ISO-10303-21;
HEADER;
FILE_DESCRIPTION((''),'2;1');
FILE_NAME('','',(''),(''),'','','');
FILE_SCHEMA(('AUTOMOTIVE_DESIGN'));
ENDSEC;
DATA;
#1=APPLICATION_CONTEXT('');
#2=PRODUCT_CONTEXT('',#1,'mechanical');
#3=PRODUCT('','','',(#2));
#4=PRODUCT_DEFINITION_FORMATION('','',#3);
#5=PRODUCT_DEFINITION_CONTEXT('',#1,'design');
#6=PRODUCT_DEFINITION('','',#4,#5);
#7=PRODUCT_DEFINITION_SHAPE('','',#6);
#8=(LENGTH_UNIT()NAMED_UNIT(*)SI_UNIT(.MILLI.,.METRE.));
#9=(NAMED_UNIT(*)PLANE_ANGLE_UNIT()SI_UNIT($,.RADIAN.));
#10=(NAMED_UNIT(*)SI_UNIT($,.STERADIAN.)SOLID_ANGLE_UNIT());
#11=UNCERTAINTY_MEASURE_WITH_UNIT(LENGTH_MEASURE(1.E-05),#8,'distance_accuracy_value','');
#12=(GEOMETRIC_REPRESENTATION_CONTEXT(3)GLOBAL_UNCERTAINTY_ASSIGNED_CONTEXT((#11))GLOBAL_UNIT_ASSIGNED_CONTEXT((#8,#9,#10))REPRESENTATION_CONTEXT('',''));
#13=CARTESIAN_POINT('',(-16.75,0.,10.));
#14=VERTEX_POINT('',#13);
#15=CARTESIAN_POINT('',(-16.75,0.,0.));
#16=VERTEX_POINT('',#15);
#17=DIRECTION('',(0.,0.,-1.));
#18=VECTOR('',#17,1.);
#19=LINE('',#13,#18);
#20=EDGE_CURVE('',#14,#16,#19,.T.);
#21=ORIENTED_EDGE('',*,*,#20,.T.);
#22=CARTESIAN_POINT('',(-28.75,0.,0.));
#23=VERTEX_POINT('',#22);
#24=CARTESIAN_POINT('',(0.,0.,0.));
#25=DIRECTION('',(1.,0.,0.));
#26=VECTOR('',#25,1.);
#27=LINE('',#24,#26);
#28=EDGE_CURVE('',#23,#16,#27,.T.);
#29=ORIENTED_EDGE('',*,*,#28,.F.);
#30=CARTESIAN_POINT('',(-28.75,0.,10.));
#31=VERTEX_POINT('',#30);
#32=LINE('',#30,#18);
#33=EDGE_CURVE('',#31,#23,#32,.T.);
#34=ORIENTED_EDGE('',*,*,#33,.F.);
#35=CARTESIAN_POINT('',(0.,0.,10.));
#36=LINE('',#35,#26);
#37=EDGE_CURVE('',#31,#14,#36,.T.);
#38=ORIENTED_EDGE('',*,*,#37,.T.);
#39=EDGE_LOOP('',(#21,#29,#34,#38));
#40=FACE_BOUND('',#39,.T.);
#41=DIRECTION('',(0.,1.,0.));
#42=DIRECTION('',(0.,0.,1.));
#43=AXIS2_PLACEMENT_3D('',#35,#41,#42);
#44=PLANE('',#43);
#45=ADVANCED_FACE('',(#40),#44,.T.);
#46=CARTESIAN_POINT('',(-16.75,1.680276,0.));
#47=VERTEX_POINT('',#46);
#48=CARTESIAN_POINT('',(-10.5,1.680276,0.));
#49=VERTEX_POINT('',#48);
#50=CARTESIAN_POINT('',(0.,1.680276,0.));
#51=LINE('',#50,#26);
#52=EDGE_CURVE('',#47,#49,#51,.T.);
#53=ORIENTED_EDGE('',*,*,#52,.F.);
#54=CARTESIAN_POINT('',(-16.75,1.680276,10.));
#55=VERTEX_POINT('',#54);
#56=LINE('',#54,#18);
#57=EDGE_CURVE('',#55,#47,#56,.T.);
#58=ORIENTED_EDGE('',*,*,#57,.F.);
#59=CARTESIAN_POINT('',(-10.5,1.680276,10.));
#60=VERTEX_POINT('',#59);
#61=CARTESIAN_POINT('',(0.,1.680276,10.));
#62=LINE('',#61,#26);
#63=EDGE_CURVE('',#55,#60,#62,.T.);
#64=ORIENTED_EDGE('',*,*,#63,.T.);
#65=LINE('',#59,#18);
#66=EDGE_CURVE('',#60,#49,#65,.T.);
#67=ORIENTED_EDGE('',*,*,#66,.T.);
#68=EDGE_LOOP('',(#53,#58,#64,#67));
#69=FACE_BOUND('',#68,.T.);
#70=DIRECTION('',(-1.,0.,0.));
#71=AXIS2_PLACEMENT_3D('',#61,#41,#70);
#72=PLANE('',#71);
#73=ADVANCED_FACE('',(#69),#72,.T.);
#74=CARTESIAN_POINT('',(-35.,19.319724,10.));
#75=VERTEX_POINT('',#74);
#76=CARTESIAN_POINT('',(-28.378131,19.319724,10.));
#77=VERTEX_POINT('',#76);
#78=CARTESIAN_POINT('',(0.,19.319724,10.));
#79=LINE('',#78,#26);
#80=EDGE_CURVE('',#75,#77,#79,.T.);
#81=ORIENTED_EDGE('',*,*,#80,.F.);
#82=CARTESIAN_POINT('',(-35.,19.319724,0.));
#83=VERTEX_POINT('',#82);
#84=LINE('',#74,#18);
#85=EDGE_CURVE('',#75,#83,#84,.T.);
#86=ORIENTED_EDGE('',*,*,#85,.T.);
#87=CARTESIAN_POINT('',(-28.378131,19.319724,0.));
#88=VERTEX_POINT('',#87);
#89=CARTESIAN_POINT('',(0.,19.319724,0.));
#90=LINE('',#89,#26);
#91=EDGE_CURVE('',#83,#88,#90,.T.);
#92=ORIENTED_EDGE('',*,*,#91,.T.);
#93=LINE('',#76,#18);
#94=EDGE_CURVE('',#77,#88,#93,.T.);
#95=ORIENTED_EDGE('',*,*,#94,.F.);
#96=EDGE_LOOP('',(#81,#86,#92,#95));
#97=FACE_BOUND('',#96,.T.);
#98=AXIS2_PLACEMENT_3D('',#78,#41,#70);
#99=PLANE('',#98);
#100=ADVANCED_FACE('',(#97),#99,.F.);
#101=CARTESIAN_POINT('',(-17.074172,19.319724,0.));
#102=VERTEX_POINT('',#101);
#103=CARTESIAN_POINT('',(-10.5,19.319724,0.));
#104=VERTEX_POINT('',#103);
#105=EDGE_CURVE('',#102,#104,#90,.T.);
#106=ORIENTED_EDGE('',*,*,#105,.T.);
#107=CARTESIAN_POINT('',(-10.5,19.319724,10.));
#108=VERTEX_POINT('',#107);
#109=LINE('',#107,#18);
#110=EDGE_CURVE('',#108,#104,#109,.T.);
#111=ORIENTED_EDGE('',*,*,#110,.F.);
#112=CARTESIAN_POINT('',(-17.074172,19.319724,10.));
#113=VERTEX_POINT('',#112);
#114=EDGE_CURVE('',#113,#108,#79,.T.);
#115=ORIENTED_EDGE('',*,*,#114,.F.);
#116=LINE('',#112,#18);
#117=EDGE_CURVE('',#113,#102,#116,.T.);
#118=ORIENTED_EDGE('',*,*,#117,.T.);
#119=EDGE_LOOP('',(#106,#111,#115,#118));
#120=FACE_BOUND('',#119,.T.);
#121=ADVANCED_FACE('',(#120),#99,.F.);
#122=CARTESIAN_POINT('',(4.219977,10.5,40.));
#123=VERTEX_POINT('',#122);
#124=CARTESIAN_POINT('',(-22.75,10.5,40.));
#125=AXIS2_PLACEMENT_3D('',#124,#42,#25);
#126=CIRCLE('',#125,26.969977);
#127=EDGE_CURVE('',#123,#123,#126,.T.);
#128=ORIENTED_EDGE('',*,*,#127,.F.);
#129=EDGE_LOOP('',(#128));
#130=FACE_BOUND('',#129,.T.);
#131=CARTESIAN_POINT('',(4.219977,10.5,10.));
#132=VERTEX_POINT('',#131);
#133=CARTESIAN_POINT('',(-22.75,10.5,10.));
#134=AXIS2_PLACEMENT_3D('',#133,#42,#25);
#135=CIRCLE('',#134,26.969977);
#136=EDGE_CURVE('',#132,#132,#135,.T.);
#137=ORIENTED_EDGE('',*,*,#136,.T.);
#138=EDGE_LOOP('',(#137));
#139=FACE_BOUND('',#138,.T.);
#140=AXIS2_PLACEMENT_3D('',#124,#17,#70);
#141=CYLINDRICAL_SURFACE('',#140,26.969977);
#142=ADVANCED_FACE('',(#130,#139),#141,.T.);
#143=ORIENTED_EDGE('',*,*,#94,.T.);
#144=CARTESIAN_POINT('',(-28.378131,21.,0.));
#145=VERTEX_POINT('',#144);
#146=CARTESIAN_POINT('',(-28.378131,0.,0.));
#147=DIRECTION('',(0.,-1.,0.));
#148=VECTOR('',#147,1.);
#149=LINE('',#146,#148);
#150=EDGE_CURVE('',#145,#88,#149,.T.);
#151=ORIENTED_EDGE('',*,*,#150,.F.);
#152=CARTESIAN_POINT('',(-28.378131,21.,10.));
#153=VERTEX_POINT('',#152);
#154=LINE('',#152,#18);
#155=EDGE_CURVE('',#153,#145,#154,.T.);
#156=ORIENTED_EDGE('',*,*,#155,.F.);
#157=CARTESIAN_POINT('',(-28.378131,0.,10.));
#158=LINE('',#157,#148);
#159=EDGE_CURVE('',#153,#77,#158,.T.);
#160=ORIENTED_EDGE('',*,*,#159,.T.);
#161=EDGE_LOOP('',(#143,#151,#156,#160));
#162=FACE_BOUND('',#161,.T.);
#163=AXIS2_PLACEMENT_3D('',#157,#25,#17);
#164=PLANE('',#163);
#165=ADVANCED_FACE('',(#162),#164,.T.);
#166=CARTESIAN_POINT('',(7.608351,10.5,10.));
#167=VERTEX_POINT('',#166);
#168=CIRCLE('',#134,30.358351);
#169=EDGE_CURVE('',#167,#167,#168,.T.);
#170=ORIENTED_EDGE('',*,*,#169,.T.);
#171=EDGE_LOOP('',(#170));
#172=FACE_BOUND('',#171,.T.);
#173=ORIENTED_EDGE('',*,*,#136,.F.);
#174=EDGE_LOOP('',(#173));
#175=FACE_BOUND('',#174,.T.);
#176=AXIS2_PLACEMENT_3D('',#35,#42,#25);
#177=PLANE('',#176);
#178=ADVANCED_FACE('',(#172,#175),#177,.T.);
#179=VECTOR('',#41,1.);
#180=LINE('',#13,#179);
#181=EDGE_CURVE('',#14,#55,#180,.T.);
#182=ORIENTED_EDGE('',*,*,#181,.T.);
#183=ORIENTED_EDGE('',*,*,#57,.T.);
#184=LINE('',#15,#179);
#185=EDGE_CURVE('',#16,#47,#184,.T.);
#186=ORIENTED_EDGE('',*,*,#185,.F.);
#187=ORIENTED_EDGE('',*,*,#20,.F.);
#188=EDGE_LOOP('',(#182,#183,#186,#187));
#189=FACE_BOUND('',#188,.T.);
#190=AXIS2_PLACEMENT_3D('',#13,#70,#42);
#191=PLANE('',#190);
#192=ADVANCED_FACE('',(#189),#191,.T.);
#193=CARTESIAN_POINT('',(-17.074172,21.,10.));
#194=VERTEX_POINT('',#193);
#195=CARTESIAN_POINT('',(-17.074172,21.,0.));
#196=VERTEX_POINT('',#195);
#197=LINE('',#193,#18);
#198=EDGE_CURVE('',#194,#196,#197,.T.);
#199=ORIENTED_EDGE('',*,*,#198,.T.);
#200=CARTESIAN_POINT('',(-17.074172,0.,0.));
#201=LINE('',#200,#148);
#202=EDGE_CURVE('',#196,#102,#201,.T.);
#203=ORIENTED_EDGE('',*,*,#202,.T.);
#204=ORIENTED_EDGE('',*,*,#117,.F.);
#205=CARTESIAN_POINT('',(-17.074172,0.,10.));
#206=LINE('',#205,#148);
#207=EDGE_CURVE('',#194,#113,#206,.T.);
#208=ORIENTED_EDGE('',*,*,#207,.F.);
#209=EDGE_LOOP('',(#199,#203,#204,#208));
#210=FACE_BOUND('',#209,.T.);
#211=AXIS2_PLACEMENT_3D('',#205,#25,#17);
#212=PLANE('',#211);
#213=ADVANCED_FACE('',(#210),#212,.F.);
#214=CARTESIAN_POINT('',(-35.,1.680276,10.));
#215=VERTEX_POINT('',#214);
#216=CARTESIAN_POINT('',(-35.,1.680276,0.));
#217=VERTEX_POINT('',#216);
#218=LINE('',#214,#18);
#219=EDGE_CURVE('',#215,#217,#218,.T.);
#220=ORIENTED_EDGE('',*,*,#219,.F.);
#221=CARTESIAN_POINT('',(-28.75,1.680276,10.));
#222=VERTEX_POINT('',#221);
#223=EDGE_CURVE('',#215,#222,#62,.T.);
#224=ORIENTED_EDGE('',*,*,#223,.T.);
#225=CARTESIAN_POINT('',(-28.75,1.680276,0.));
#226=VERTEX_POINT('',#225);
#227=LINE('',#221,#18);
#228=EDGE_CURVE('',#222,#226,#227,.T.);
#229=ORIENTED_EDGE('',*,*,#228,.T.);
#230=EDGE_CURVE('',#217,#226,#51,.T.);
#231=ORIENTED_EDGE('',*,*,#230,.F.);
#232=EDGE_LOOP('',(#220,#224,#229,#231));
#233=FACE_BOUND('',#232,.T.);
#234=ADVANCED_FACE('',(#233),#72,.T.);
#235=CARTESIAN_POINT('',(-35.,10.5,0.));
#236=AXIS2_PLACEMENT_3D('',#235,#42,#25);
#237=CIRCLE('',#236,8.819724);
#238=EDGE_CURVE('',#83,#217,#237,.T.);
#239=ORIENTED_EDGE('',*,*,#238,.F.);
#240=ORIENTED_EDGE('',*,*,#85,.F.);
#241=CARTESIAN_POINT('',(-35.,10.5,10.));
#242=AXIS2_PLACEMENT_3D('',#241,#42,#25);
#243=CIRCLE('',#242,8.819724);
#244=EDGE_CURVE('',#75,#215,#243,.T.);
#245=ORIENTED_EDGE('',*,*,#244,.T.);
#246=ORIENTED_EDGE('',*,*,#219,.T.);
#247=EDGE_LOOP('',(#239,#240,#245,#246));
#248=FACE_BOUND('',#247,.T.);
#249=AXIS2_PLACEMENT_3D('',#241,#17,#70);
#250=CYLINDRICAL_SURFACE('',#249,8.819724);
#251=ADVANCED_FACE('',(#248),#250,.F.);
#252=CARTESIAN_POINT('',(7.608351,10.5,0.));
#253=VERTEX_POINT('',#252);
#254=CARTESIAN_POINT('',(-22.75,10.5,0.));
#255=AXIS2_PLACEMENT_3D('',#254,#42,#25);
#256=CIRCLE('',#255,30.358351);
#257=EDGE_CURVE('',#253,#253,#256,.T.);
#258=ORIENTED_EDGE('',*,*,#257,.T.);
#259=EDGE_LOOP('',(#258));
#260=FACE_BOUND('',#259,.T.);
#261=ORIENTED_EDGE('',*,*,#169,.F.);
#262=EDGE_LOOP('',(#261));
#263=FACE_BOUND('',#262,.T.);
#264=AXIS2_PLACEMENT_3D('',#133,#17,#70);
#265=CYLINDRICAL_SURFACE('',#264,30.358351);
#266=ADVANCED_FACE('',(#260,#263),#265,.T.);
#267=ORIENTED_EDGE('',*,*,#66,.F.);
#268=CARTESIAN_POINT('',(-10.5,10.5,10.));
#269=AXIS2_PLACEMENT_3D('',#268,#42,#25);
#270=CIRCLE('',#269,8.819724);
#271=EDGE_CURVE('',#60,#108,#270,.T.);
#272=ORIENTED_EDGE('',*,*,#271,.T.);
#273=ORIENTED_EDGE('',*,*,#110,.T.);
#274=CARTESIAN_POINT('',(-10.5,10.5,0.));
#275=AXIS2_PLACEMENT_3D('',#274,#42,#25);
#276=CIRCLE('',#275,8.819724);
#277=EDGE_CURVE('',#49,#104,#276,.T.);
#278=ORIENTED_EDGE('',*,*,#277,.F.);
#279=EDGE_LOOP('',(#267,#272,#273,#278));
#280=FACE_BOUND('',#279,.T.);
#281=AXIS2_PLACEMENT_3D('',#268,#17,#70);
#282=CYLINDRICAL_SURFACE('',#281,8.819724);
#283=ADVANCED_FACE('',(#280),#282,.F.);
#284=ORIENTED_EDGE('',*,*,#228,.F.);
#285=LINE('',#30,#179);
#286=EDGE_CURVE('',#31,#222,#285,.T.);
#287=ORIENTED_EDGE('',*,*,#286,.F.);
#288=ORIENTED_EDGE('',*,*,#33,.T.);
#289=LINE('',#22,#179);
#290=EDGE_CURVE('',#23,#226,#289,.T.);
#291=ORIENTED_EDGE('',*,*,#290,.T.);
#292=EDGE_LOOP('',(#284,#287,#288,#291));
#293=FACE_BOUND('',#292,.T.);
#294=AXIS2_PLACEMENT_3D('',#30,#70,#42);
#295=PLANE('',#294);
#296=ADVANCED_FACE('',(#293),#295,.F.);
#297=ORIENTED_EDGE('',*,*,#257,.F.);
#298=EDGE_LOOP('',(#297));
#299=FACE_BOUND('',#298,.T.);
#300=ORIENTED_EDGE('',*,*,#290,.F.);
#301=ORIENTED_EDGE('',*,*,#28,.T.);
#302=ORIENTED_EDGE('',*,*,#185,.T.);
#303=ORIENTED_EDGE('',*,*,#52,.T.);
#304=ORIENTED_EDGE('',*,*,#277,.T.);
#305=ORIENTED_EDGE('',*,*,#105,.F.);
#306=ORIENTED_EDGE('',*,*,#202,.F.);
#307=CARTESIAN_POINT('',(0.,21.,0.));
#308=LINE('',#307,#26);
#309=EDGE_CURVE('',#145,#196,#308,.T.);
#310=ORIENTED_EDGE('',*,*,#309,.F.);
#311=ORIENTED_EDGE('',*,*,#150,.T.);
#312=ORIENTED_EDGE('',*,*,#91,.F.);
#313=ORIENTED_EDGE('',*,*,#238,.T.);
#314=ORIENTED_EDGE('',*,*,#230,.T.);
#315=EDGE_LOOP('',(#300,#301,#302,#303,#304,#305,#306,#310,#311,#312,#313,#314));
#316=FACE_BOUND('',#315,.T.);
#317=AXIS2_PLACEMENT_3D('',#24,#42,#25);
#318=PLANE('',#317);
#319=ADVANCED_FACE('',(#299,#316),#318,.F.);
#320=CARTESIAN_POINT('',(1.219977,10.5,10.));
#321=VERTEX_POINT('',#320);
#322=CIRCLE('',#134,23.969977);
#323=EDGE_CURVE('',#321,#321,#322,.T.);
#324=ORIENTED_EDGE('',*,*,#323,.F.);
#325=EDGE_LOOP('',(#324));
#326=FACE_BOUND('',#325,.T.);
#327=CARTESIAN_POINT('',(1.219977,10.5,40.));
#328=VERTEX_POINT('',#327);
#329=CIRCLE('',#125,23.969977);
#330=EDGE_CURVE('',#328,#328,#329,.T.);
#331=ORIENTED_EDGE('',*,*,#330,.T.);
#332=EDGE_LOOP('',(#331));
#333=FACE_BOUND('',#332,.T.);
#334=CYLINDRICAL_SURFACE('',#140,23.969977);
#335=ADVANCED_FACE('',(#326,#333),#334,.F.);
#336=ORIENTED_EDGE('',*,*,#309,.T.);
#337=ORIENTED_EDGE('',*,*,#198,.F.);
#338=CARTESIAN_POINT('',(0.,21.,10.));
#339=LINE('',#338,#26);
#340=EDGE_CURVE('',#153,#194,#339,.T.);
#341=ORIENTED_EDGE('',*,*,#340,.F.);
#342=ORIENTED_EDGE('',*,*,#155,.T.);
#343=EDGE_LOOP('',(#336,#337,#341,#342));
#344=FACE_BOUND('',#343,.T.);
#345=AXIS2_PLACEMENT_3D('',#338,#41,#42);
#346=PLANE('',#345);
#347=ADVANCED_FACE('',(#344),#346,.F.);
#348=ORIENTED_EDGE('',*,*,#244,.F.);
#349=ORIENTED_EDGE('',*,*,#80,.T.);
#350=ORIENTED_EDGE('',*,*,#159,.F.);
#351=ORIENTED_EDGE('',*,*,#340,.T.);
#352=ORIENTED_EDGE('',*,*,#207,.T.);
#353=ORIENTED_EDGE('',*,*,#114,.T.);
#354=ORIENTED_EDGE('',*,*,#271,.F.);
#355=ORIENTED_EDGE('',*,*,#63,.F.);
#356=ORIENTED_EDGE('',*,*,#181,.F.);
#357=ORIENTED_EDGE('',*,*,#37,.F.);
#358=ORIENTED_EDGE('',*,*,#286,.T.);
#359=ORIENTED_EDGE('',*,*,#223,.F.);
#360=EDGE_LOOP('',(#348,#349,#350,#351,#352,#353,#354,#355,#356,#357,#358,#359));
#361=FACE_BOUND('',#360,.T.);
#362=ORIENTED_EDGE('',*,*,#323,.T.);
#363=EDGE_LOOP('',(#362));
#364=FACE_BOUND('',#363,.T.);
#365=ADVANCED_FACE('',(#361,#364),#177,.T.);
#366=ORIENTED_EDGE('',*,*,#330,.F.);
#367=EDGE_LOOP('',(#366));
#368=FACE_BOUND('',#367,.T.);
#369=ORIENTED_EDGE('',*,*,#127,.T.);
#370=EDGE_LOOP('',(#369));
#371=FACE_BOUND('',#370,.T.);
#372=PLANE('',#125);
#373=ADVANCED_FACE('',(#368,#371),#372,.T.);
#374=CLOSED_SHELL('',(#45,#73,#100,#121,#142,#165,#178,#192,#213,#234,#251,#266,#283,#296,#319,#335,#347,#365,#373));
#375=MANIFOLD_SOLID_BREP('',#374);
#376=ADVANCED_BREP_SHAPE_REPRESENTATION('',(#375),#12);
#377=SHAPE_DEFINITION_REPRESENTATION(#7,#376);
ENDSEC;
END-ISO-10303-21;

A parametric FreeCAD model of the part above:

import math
import FreeCAD as App
import Part
import Sketcher
Q = App.Units.Quantity

doc = App.newDocument("Part")
body = doc.addObject("PartDesign::Body", "Body")

# Sketch on XY plane
sketch1 = body.newObject("Sketcher::SketchObject", "Sketch")
sketch1.AttachmentSupport = (doc.getObject("XY_Plane"), [""])
sketch1.MapMode = "FlatFace"
sketch1.addGeometry([
    Part.Circle(App.Vector(-22.8, 10.5, 0), App.Vector(0, 0, 1), 30.4),  # 0
    Part.LineSegment(App.Vector(-28.8, 1.7, 0), App.Vector(-35, 1.7, 0)),  # 1
    Part.ArcOfCircle(Part.Circle(App.Vector(-35, 10.5, 0), App.Vector(0, 0, 1), 8.8), math.radians(90), math.radians(270)),  # 2
    Part.LineSegment(App.Vector(-35, 19.3, 0), App.Vector(-28.4, 19.3, 0)),  # 3
    Part.LineSegment(App.Vector(-28.4, 19.3, 0), App.Vector(-28.4, 21, 0)),  # 4
    Part.LineSegment(App.Vector(-28.4, 21, 0), App.Vector(-17.1, 21, 0)),  # 5
    Part.LineSegment(App.Vector(-17.1, 21, 0), App.Vector(-17.1, 19.3, 0)),  # 6
    Part.LineSegment(App.Vector(-17.1, 19.3, 0), App.Vector(-10.5, 19.3, 0)),  # 7
    Part.ArcOfCircle(Part.Circle(App.Vector(-10.5, 10.5, 0), App.Vector(0, 0, 1), 8.8), math.radians(-90), math.radians(90)),  # 8
    Part.LineSegment(App.Vector(-10.5, 1.7, 0), App.Vector(-16.8, 1.7, 0)),  # 9
    Part.LineSegment(App.Vector(-16.8, 1.7, 0), App.Vector(-16.8, 0, 0)),  # 10
    Part.LineSegment(App.Vector(-16.8, 0, 0), App.Vector(-28.8, 0, 0)),  # 11
    Part.LineSegment(App.Vector(-28.8, 0, 0), App.Vector(-28.8, 1.7, 0)),  # 12
], False)
sketch1.addConstraint([
    Sketcher.Constraint("Tangent", 1, 2, 2, 2),
    Sketcher.Constraint("Tangent", 2, 1, 3, 1),
    Sketcher.Constraint("Coincident", 3, 2, 4, 1),
    Sketcher.Constraint("Coincident", 4, 2, 5, 1),
    Sketcher.Constraint("Coincident", 5, 2, 6, 1),
    Sketcher.Constraint("Coincident", 6, 2, 7, 1),
    Sketcher.Constraint("Tangent", 7, 2, 8, 2),
    Sketcher.Constraint("Tangent", 8, 1, 9, 1),
    Sketcher.Constraint("Coincident", 9, 2, 10, 1),
    Sketcher.Constraint("Coincident", 10, 2, 11, 1),
    Sketcher.Constraint("Coincident", 11, 2, 12, 1),
    Sketcher.Constraint("Coincident", 12, 2, 1, 1),
    Sketcher.Constraint("Horizontal", 1),
    Sketcher.Constraint("Horizontal", 3),
    Sketcher.Constraint("Vertical", 4),
    Sketcher.Constraint("Horizontal", 5),
    Sketcher.Constraint("Vertical", 6),
    Sketcher.Constraint("Horizontal", 7),
    Sketcher.Constraint("Horizontal", 9),
    Sketcher.Constraint("Vertical", 10),
    Sketcher.Constraint("Horizontal", 11),
    Sketcher.Constraint("Vertical", 12),
    Sketcher.Constraint("Equal", 2, 8),
    Sketcher.Constraint("PointOnObject", 10, 2, -1),
    Sketcher.Constraint("Horizontal", 0, 3, 2, 3),
    Sketcher.Constraint("Horizontal", 2, 3, 8, 3),
    Sketcher.Constraint("Equal", 1, 9),
    Sketcher.Constraint("Equal", 6, 10),
    Sketcher.Constraint("DistanceX", 11, 2, 11, 1, Q("12 mm")),
    Sketcher.Constraint("DistanceX", 2, 3, -1, 1, Q("35 mm")),
    Sketcher.Constraint("DistanceY", -1, 1, 4, 2, Q("21 mm")),
    Sketcher.Constraint("DistanceX", 0, 3, 9, 2, Q("6 mm")),
    Sketcher.Constraint("DistanceX", 1, 2, 1, 1, Q("6.25 mm")),
    Sketcher.Constraint("Diameter", 0, Q("60.716703 mm")),
    Sketcher.Constraint("Radius", 2, Q("8.819724 mm")),
    Sketcher.Constraint("DistanceX", 3, 1, 3, 2, Q("6.621869 mm")),
    Sketcher.Constraint("DistanceX", 5, 1, 5, 2, Q("11.303959 mm")),
])
pad1 = body.newObject("PartDesign::Pad", "Pad")
pad1.Profile = sketch1
pad1.Length = 10

# Sketch on XY plane
sketch2 = body.newObject("Sketcher::SketchObject", "Sketch001")
sketch2.AttachmentSupport = (doc.getObject("XY_Plane"), [""])
sketch2.MapMode = "FlatFace"
sketch2.AttachmentOffset = App.Placement(App.Vector(0, 0, 10), App.Rotation())
sketch2.addGeometry([
    Part.Circle(App.Vector(-23, 10, 0), App.Vector(0, 0, 1), 27),
    Part.Circle(App.Vector(-23, 10, 0), App.Vector(0, 0, 1), 24),
], False)
sketch2.addConstraint([
    Sketcher.Constraint("Coincident", 1, 3, 0, 3),
    Sketcher.Constraint("DistanceY", -1, 1, 0, 3, Q("10.5 mm")),
    Sketcher.Constraint("DistanceX", 0, 3, -1, 1, Q("22.75 mm")),
    Sketcher.Constraint("Diameter", 0, Q("53.939955 mm")),
    Sketcher.Constraint("Diameter", 1, Q("47.939955 mm")),
])
pad2 = body.newObject("PartDesign::Pad", "Pad001")
pad2.Profile = sketch2
pad2.Length = 30

doc.recompute()
